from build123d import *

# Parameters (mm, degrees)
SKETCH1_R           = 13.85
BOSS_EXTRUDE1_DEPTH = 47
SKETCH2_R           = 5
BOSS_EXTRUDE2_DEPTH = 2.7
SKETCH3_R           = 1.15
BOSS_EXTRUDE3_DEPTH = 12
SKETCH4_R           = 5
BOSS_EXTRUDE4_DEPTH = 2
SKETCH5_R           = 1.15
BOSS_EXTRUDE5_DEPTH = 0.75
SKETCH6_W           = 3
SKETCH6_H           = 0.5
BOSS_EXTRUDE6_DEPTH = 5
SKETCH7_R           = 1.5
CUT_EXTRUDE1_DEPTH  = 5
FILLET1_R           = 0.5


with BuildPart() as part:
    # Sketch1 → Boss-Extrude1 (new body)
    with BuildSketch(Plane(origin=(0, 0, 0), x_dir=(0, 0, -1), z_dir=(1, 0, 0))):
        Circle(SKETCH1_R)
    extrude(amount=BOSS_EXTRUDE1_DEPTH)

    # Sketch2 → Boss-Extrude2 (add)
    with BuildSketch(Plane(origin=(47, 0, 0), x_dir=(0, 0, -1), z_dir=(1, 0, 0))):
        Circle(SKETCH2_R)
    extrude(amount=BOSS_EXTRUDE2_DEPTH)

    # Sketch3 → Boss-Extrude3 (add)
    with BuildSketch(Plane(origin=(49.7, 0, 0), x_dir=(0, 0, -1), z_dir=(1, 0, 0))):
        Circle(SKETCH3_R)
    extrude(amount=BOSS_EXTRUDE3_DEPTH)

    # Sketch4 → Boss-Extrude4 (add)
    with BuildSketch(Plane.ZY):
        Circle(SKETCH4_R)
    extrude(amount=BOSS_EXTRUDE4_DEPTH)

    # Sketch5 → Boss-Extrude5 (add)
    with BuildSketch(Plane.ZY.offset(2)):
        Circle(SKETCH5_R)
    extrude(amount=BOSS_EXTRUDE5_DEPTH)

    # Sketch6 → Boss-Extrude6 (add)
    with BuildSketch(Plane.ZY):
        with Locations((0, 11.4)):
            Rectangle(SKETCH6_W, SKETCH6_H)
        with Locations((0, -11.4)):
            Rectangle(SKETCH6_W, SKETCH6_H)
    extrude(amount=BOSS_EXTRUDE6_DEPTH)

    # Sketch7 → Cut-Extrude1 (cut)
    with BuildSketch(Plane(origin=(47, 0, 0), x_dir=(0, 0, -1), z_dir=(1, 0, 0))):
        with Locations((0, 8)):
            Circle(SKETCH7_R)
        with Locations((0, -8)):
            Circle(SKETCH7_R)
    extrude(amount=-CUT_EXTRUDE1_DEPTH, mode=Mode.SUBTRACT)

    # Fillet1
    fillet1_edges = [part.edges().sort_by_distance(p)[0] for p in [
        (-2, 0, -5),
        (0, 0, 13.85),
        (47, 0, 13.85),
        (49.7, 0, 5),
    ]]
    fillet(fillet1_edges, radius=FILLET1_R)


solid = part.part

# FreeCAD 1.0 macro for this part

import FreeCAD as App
import Part
import Sketcher

V = App.Vector


def edges_at(feature, points):
    """Names of the edges that pass closest to the given points."""
    edges = feature.Shape.Edges
    near = lambda p: min(range(len(edges)), key=lambda i: edges[i].distToShape(Part.Vertex(*p))[0])
    return sorted({f"Edge{near(p) + 1}" for p in points})

doc = App.newDocument("Part")
body = doc.addObject("PartDesign::Body", "Body")

# Sketch on YZ plane
sketch1 = body.newObject("Sketcher::SketchObject", "Sketch")
sketch1.AttachmentSupport = (doc.getObject("YZ_Plane"), [""])
sketch1.MapMode = "FlatFace"
sketch1.addGeometry(Part.Circle(V(0, 0, 0), V(0, 0, 1), 13.85), False)
sketch1.addConstraint([
    Sketcher.Constraint("Coincident", 0, 3, -1, 1),
    Sketcher.Constraint("Diameter", 0, 27.7),
])
pad1 = body.newObject("PartDesign::Pad", "Pad")
pad1.Profile = sketch1
pad1.Length = 47

# Sketch on YZ plane
sketch2 = body.newObject("Sketcher::SketchObject", "Sketch001")
sketch2.AttachmentSupport = (doc.getObject("YZ_Plane"), [""])
sketch2.MapMode = "FlatFace"
sketch2.AttachmentOffset = App.Placement(V(0, 0, 47), App.Rotation())
sketch2.addGeometry(Part.Circle(V(0, 0, 0), V(0, 0, 1), 5), False)
sketch2.addConstraint([
    Sketcher.Constraint("Coincident", 0, 3, -1, 1),
    Sketcher.Constraint("Diameter", 0, 10.0),
])
pad2 = body.newObject("PartDesign::Pad", "Pad001")
pad2.Profile = sketch2
pad2.Length = 2.7

# Sketch on YZ plane
sketch3 = body.newObject("Sketcher::SketchObject", "Sketch002")
sketch3.AttachmentSupport = (doc.getObject("YZ_Plane"), [""])
sketch3.MapMode = "FlatFace"
sketch3.AttachmentOffset = App.Placement(V(0, 0, 49.7), App.Rotation())
sketch3.addGeometry(Part.Circle(V(0, 0, 0), V(0, 0, 1), 1.15), False)
sketch3.addConstraint([
    Sketcher.Constraint("Coincident", 0, 3, -1, 1),
    Sketcher.Constraint("Diameter", 0, 2.3),
])
pad3 = body.newObject("PartDesign::Pad", "Pad002")
pad3.Profile = sketch3
pad3.Length = 12

# Sketch on YZ plane
sketch4 = body.newObject("Sketcher::SketchObject", "Sketch003")
sketch4.AttachmentSupport = (doc.getObject("YZ_Plane"), [""])
sketch4.MapMode = "FlatFace"
sketch4.addGeometry(Part.Circle(V(0, 0, 0), V(0, 0, 1), 5), False)
sketch4.addConstraint([
    Sketcher.Constraint("Coincident", 0, 3, -1, 1),
    Sketcher.Constraint("Diameter", 0, 10.0),
])
pad4 = body.newObject("PartDesign::Pad", "Pad003")
pad4.Profile = sketch4
pad4.Length = 2
pad4.Reversed = True

# Sketch on YZ plane
sketch5 = body.newObject("Sketcher::SketchObject", "Sketch004")
sketch5.AttachmentSupport = (doc.getObject("YZ_Plane"), [""])
sketch5.MapMode = "FlatFace"
sketch5.AttachmentOffset = App.Placement(V(0, 0, -2), App.Rotation())
sketch5.addGeometry(Part.Circle(V(0, 0, 0), V(0, 0, 1), 1.15), False)
sketch5.addConstraint([
    Sketcher.Constraint("Coincident", 0, 3, -1, 1),
    Sketcher.Constraint("Diameter", 0, 2.3),
])
pad5 = body.newObject("PartDesign::Pad", "Pad004")
pad5.Profile = sketch5
pad5.Length = 0.75
pad5.Reversed = True

# Sketch on YZ plane
sketch6 = body.newObject("Sketcher::SketchObject", "Sketch005")
sketch6.AttachmentSupport = (doc.getObject("YZ_Plane"), [""])
sketch6.MapMode = "FlatFace"
sketch6.addGeometry([
    Part.LineSegment(V(11.65, -1.5, 0), V(11.15, -1.5, 0)),  # 0
    Part.LineSegment(V(11.15, -1.5, 0), V(11.15, 1.5, 0)),  # 1
    Part.LineSegment(V(11.15, 1.5, 0), V(11.65, 1.5, 0)),  # 2
    Part.LineSegment(V(11.65, 1.5, 0), V(11.65, -1.5, 0)),  # 3
    Part.LineSegment(V(-11.15, -1.5, 0), V(-11.65, -1.5, 0)),  # 4
    Part.LineSegment(V(-11.65, -1.5, 0), V(-11.65, 1.5, 0)),  # 5
    Part.LineSegment(V(-11.65, 1.5, 0), V(-11.15, 1.5, 0)),  # 6
    Part.LineSegment(V(-11.15, 1.5, 0), V(-11.15, -1.5, 0)),  # 7
], False)
sketch6.addConstraint([
    Sketcher.Constraint("Coincident", 0, 2, 1, 1),
    Sketcher.Constraint("Coincident", 1, 2, 2, 1),
    Sketcher.Constraint("Coincident", 2, 2, 3, 1),
    Sketcher.Constraint("Coincident", 3, 2, 0, 1),
    Sketcher.Constraint("Coincident", 4, 2, 5, 1),
    Sketcher.Constraint("Coincident", 5, 2, 6, 1),
    Sketcher.Constraint("Coincident", 6, 2, 7, 1),
    Sketcher.Constraint("Coincident", 7, 2, 4, 1),
    Sketcher.Constraint("Horizontal", 0),
    Sketcher.Constraint("Vertical", 1),
    Sketcher.Constraint("Horizontal", 2),
    Sketcher.Constraint("Vertical", 3),
    Sketcher.Constraint("Horizontal", 4),
    Sketcher.Constraint("Vertical", 5),
    Sketcher.Constraint("Horizontal", 6),
    Sketcher.Constraint("Vertical", 7),
    Sketcher.Constraint("Symmetric", 2, 2, 4, 2, -1, 1),
    Sketcher.Constraint("Symmetric", 0, 2, 6, 2, -1, 1),
    Sketcher.Constraint("Horizontal", 3, 2, 4, 2),
    Sketcher.Constraint("DistanceY", 1, 1, 1, 2, 3.0),
    Sketcher.Constraint("DistanceX", 0, 2, 0, 1, 0.5),
    Sketcher.Constraint("DistanceX", 4, 2, 0, 2, 22.8),
])
pad6 = body.newObject("PartDesign::Pad", "Pad005")
pad6.Profile = sketch6
pad6.Length = 5
pad6.Reversed = True

# Sketch on YZ plane
sketch7 = body.newObject("Sketcher::SketchObject", "Sketch006")
sketch7.AttachmentSupport = (doc.getObject("YZ_Plane"), [""])
sketch7.MapMode = "FlatFace"
sketch7.AttachmentOffset = App.Placement(V(0, 0, 47), App.Rotation())
sketch7.addGeometry([
    Part.Circle(V(8, 0, 0), V(0, 0, 1), 1.5),
    Part.Circle(V(-8, 0, 0), V(0, 0, 1), 1.5),
], False)
sketch7.addConstraint([
    Sketcher.Constraint("Equal", 0, 1),
    Sketcher.Constraint("Symmetric", 0, 3, 1, 3, -1, 1),
    Sketcher.Constraint("PointOnObject", 0, 3, -1),
    Sketcher.Constraint("Diameter", 0, 3.0),
    Sketcher.Constraint("DistanceX", -1, 1, 0, 3, 8.0),
])
pocket1 = body.newObject("PartDesign::Pocket", "Pocket")
pocket1.Profile = sketch7
pocket1.Length = 5
doc.recompute()

fillet = body.newObject("PartDesign::Fillet", "Fillet")
fillet.Base = (pocket1, edges_at(pocket1, [
    (-2, 0, -5),
    (0, 0, 13.85),
    (47, 0, 13.85),
    (49.7, 0, 5),
]))
fillet.Radius = 0.5

doc.recompute()
